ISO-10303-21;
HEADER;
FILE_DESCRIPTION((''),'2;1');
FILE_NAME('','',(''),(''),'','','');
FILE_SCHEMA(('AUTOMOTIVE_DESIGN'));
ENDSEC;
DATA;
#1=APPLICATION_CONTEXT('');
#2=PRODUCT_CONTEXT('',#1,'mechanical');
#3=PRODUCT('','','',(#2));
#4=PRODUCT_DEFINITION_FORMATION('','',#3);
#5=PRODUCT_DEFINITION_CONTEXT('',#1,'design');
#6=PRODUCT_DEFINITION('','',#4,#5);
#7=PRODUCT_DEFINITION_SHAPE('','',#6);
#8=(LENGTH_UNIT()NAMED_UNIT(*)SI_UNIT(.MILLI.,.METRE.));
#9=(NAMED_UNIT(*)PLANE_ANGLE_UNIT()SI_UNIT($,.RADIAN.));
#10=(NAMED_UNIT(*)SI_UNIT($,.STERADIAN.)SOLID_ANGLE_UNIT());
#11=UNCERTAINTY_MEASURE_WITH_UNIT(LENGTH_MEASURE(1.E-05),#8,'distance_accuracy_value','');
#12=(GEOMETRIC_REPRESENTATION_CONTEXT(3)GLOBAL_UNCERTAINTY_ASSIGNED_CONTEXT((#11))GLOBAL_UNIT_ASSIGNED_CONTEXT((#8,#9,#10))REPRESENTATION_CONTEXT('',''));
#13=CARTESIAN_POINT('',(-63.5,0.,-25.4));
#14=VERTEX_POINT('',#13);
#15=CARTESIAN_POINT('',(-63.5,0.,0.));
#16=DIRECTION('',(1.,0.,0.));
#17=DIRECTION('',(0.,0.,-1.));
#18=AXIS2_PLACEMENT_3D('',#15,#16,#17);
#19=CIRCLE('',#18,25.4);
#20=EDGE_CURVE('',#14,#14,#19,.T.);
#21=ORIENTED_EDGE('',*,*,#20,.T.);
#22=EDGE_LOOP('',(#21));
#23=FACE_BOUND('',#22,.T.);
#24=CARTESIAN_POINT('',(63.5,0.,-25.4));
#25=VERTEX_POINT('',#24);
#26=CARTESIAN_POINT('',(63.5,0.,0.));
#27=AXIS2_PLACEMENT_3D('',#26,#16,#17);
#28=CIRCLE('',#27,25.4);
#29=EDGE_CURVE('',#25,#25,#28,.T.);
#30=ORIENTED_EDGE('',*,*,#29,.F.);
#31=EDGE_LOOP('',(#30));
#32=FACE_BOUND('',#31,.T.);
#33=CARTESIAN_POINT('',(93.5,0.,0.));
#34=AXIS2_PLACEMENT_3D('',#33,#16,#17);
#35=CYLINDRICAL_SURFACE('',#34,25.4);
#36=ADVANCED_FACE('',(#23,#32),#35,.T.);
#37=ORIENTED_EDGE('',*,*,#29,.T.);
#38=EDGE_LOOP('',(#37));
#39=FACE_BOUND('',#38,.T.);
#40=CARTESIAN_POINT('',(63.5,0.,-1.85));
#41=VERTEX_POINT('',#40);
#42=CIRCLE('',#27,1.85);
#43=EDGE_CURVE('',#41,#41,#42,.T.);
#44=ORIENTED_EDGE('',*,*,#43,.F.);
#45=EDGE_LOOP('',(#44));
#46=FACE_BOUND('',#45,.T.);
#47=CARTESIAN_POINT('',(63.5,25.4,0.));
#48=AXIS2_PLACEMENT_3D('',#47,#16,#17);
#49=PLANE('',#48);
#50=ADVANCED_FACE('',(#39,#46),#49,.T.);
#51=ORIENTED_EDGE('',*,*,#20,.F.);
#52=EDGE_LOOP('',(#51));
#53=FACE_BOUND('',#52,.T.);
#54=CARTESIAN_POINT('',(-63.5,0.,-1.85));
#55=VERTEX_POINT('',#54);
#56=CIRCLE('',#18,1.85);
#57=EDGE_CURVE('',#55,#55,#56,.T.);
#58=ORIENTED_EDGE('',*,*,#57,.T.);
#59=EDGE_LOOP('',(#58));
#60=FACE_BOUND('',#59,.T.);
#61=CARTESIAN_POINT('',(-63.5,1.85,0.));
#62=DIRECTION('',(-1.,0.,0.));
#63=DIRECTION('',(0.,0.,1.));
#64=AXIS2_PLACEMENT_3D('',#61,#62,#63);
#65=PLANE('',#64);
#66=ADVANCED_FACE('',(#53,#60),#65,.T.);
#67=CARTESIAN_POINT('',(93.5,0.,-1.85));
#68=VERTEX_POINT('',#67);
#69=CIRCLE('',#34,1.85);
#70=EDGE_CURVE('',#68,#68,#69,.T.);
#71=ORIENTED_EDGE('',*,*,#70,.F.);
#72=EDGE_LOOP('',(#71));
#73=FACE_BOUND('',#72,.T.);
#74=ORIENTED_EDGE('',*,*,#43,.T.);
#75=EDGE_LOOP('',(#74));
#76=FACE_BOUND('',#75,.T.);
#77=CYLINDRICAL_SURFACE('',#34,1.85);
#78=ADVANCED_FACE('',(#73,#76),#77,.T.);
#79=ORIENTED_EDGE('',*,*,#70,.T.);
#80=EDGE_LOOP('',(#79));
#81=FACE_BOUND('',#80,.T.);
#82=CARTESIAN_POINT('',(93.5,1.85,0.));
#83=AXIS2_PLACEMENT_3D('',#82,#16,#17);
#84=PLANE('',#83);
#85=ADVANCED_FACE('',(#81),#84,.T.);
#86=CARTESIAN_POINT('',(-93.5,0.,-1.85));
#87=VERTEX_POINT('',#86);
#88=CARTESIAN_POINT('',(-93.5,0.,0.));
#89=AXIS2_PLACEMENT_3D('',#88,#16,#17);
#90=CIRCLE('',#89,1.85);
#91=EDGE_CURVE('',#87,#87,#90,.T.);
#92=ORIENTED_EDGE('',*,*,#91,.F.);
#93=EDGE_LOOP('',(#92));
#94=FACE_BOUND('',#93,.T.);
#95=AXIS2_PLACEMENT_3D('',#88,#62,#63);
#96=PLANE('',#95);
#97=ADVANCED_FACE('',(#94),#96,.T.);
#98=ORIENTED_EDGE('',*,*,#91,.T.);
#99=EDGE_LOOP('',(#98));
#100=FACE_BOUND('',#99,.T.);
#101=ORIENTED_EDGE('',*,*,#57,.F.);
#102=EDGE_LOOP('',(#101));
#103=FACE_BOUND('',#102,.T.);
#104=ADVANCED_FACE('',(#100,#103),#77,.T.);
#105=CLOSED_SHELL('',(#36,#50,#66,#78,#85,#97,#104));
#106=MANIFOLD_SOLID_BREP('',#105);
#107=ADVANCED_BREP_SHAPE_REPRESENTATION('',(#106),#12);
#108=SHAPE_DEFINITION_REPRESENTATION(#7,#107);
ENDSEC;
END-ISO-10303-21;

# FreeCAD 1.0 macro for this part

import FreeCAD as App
import Part
import Sketcher
from FreeCAD import Vector
Q = App.Units.Quantity

doc = App.newDocument("Part")
body = doc.addObject("PartDesign::Body", "Body")

sketch1 = doc.addObject("Sketcher::SketchObject", "Sketch")
body.addObject(sketch1)
sketch1.AttachmentSupport = (doc.XY_Plane, [""])
sketch1.MapMode = "FlatFace"
sketch1.addGeometry(Part.LineSegment(Vector(-93.5, 1.9, 0), Vector(-93.5, 0, 0)), False)
sketch1.addGeometry(Part.LineSegment(Vector(-93.5, 0, 0), Vector(93.5, 0, 0)), False)
sketch1.addGeometry(Part.LineSegment(Vector(93.5, 0, 0), Vector(93.5, 1.9, 0)), False)
sketch1.addGeometry(Part.LineSegment(Vector(93.5, 1.9, 0), Vector(63.5, 1.9, 0)), False)
sketch1.addGeometry(Part.LineSegment(Vector(63.5, 1.9, 0), Vector(63.5, 25.4, 0)), False)
sketch1.addGeometry(Part.LineSegment(Vector(63.5, 25.4, 0), Vector(-63.5, 25.4, 0)), False)
sketch1.addGeometry(Part.LineSegment(Vector(-63.5, 25.4, 0), Vector(-63.5, 1.9, 0)), False)
sketch1.addGeometry(Part.LineSegment(Vector(-63.5, 1.9, 0), Vector(-93.5, 1.9, 0)), False)
sketch1.addConstraint(Sketcher.Constraint("Coincident", 0, 2, 1, 1))
sketch1.addConstraint(Sketcher.Constraint("Coincident", 1, 2, 2, 1))
sketch1.addConstraint(Sketcher.Constraint("Coincident", 2, 2, 3, 1))
sketch1.addConstraint(Sketcher.Constraint("Coincident", 3, 2, 4, 1))
sketch1.addConstraint(Sketcher.Constraint("Coincident", 4, 2, 5, 1))
sketch1.addConstraint(Sketcher.Constraint("Coincident", 5, 2, 6, 1))
sketch1.addConstraint(Sketcher.Constraint("Coincident", 6, 2, 7, 1))
sketch1.addConstraint(Sketcher.Constraint("Coincident", 7, 2, 0, 1))
sketch1.addConstraint(Sketcher.Constraint("Vertical", 0))
sketch1.addConstraint(Sketcher.Constraint("Horizontal", 1))
sketch1.addConstraint(Sketcher.Constraint("Vertical", 2))
sketch1.addConstraint(Sketcher.Constraint("Horizontal", 3))
sketch1.addConstraint(Sketcher.Constraint("Vertical", 4))
sketch1.addConstraint(Sketcher.Constraint("Horizontal", 5))
sketch1.addConstraint(Sketcher.Constraint("Vertical", 6))
sketch1.addConstraint(Sketcher.Constraint("Horizontal", 7))
sketch1.addConstraint(Sketcher.Constraint("Symmetric", 0, 2, 1, 2, -1, 1))
sketch1.addConstraint(Sketcher.Constraint("Symmetric", 3, 2, 6, 2, -2))
sketch1.addConstraint(Sketcher.Constraint("DistanceX", 1, 1, 1, 2, Q("187 mm")))
sketch1.addConstraint(Sketcher.Constraint("DistanceX", 3, 2, 3, 1, Q("30 mm")))
sketch1.addConstraint(Sketcher.Constraint("DistanceY", 0, 2, 0, 1, Q("1.85 mm")))
sketch1.addConstraint(Sketcher.Constraint("DistanceY", 4, 1, 4, 2, Q("23.55 mm")))
revolution = doc.addObject("PartDesign::Revolution", "Revolution")
body.addObject(revolution)
revolution.Profile = sketch1
revolution.ReferenceAxis = (sketch1, ["H_Axis"])
revolution.Angle = 360

doc.recompute()
